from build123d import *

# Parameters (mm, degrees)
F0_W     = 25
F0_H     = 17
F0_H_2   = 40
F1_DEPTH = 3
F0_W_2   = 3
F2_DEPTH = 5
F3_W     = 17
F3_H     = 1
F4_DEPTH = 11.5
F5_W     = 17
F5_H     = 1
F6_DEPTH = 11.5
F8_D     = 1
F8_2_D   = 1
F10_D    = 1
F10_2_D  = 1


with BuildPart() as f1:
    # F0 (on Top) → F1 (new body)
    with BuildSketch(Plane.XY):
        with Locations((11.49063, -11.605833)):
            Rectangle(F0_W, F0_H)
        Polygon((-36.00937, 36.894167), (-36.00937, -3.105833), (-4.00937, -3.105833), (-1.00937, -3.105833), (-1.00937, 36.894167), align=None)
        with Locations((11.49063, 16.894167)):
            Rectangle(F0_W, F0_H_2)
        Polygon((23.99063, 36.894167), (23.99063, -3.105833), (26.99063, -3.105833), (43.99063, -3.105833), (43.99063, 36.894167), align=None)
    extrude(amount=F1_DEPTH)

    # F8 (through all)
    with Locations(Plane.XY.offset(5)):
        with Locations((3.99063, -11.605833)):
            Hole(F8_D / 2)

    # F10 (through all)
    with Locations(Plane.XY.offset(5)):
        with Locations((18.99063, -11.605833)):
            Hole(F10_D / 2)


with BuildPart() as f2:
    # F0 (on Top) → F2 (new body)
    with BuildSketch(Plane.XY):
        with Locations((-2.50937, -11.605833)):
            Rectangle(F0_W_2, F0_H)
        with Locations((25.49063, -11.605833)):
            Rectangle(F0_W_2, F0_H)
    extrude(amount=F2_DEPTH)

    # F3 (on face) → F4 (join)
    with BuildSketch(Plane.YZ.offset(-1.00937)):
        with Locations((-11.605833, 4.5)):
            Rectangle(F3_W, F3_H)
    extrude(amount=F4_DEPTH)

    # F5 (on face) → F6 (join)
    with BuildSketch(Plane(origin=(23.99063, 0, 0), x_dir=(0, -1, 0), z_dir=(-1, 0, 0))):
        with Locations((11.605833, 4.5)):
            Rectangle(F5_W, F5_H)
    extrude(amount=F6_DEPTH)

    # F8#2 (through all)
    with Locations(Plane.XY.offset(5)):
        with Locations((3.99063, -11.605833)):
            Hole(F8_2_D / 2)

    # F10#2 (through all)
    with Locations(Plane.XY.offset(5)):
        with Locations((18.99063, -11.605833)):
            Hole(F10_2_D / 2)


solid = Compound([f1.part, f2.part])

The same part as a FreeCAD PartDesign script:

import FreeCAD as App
import Part
import Sketcher
Q = App.Units.Quantity

doc = App.newDocument("Part")
body = doc.addObject("PartDesign::Body", "Body")

# Sketch on XY plane
sketch1 = body.newObject("Sketcher::SketchObject", "Sketch")
sketch1.AttachmentSupport = (doc.getObject("XY_Plane"), [""])
sketch1.MapMode = "FlatFace"
sketch1.addGeometry([
    Part.LineSegment(App.Vector(-1, -3, 0), App.Vector(-1, -20, 0)),  # 0
    Part.LineSegment(App.Vector(-1, -20, 0), App.Vector(24, -20, 0)),  # 1
    Part.LineSegment(App.Vector(24, -20, 0), App.Vector(24, -3, 0)),  # 2
    Part.LineSegment(App.Vector(24, -3, 0), App.Vector(44, -3, 0)),  # 3
    Part.LineSegment(App.Vector(44, -3, 0), App.Vector(44, 37, 0)),  # 4
    Part.LineSegment(App.Vector(44, 37, 0), App.Vector(-36, 37, 0)),  # 5
    Part.LineSegment(App.Vector(-36, 37, 0), App.Vector(-36, -3, 0)),  # 6
    Part.LineSegment(App.Vector(-36, -3, 0), App.Vector(-1, -3, 0)),  # 7
], False)
sketch1.addConstraint([
    Sketcher.Constraint("Coincident", 0, 2, 1, 1),
    Sketcher.Constraint("Coincident", 1, 2, 2, 1),
    Sketcher.Constraint("Coincident", 2, 2, 3, 1),
    Sketcher.Constraint("Coincident", 3, 2, 4, 1),
    Sketcher.Constraint("Coincident", 4, 2, 5, 1),
    Sketcher.Constraint("Coincident", 5, 2, 6, 1),
    Sketcher.Constraint("Coincident", 6, 2, 7, 1),
    Sketcher.Constraint("Coincident", 7, 2, 0, 1),
    Sketcher.Constraint("Vertical", 0),
    Sketcher.Constraint("Horizontal", 1),
    Sketcher.Constraint("Vertical", 2),
    Sketcher.Constraint("Horizontal", 3),
    Sketcher.Constraint("Vertical", 4),
    Sketcher.Constraint("Horizontal", 5),
    Sketcher.Constraint("Vertical", 6),
    Sketcher.Constraint("Horizontal", 7),
    Sketcher.Constraint("Horizontal", 3, 2, 6, 2),
    Sketcher.Constraint("DistanceX", 1, 1, 1, 2, Q("25 mm")),
    Sketcher.Constraint("DistanceX", 3, 1, 3, 2, Q("20 mm")),
    Sketcher.Constraint("DistanceX", 5, 2, 5, 1, Q("80 mm")),
    Sketcher.Constraint("DistanceY", 0, 2, 0, 1, Q("17 mm")),
    Sketcher.Constraint("DistanceY", 4, 1, 4, 2, Q("40 mm")),
    Sketcher.Constraint("DistanceX", 0, 2, -1, 1, Q("1.00937 mm")),
    Sketcher.Constraint("DistanceY", 0, 2, -1, 1, Q("20.105833 mm")),
])
pad1 = body.newObject("PartDesign::Pad", "Pad")
pad1.Profile = sketch1
pad1.Length = 3

# Sketch on XY plane
sketch2 = body.newObject("Sketcher::SketchObject", "Sketch001")
sketch2.AttachmentSupport = (doc.getObject("XY_Plane"), [""])
sketch2.MapMode = "FlatFace"
sketch2.AttachmentOffset = App.Placement(App.Vector(0, 0, 5), App.Rotation())
sketch2.addGeometry(Part.Circle(App.Vector(4, -11.6, 0), App.Vector(0, 0, 1), 0.5), False)
sketch2.addConstraint([
    Sketcher.Constraint("Diameter", 0, Q("1 mm")),
    Sketcher.Constraint("DistanceX", -1, 1, 0, 3, Q("3.99063 mm")),
    Sketcher.Constraint("DistanceY", 0, 3, -1, 1, Q("11.605833 mm")),
])
doc.recompute()
hole = body.newObject("PartDesign::Hole", "Hole")
hole.Profile = sketch2
hole.ThreadType = "None"
hole.Diameter = 1
hole.DepthType = "ThroughAll"

# Sketch on XY plane
sketch3 = body.newObject("Sketcher::SketchObject", "Sketch002")
sketch3.AttachmentSupport = (doc.getObject("XY_Plane"), [""])
sketch3.MapMode = "FlatFace"
sketch3.AttachmentOffset = App.Placement(App.Vector(0, 0, 5), App.Rotation())
sketch3.addGeometry(Part.Circle(App.Vector(19, -11.6, 0), App.Vector(0, 0, 1), 0.5), False)
sketch3.addConstraint([
    Sketcher.Constraint("Diameter", 0, Q("1 mm")),
    Sketcher.Constraint("DistanceX", -1, 1, 0, 3, Q("18.99063 mm")),
    Sketcher.Constraint("DistanceY", 0, 3, -1, 1, Q("11.605833 mm")),
])
doc.recompute()
hole2 = body.newObject("PartDesign::Hole", "Hole001")
hole2.Profile = sketch3
hole2.ThreadType = "None"
hole2.Diameter = 1
hole2.DepthType = "ThroughAll"
body2 = doc.addObject("PartDesign::Body", "Body001")
body2.AllowCompound = True

# Sketch on XY plane
sketch4 = body2.newObject("Sketcher::SketchObject", "Sketch003")
sketch4.AttachmentSupport = (doc.getObject("XY_Plane001"), [""])
sketch4.MapMode = "FlatFace"
sketch4.addGeometry([
    Part.LineSegment(App.Vector(-4, -3.1, 0), App.Vector(-4, -20.1, 0)),  # 0
    Part.LineSegment(App.Vector(-4, -20.1, 0), App.Vector(-1, -20.1, 0)),  # 1
    Part.LineSegment(App.Vector(-1, -20.1, 0), App.Vector(-1, -3.1, 0)),  # 2
    Part.LineSegment(App.Vector(-1, -3.1, 0), App.Vector(-4, -3.1, 0)),  # 3
    Part.LineSegment(App.Vector(24, -3.1, 0), App.Vector(24, -20.1, 0)),  # 4
    Part.LineSegment(App.Vector(24, -20.1, 0), App.Vector(27, -20.1, 0)),  # 5
    Part.LineSegment(App.Vector(27, -20.1, 0), App.Vector(27, -3.1, 0)),  # 6
    Part.LineSegment(App.Vector(27, -3.1, 0), App.Vector(24, -3.1, 0)),  # 7
], False)
sketch4.addConstraint([
    Sketcher.Constraint("Coincident", 0, 2, 1, 1),
    Sketcher.Constraint("Coincident", 1, 2, 2, 1),
    Sketcher.Constraint("Coincident", 2, 2, 3, 1),
    Sketcher.Constraint("Coincident", 3, 2, 0, 1),
    Sketcher.Constraint("Coincident", 4, 2, 5, 1),
    Sketcher.Constraint("Coincident", 5, 2, 6, 1),
    Sketcher.Constraint("Coincident", 6, 2, 7, 1),
    Sketcher.Constraint("Coincident", 7, 2, 4, 1),
    Sketcher.Constraint("Vertical", 0),
    Sketcher.Constraint("Horizontal", 1),
    Sketcher.Constraint("Vertical", 2),
    Sketcher.Constraint("Horizontal", 3),
    Sketcher.Constraint("Vertical", 4),
    Sketcher.Constraint("Horizontal", 5),
    Sketcher.Constraint("Vertical", 6),
    Sketcher.Constraint("Horizontal", 7),
    Sketcher.Constraint("Horizontal", 1, 2, 4, 2),
    Sketcher.Constraint("Horizontal", 3, 2, 6, 2),
    Sketcher.Constraint("Equal", 3, 5),
    Sketcher.Constraint("DistanceX", 1, 1, 1, 2, Q("3 mm")),
    Sketcher.Constraint("DistanceY", 0, 2, 0, 1, Q("17 mm")),
    Sketcher.Constraint("DistanceX", 1, 2, 4, 2, Q("25 mm")),
    Sketcher.Constraint("DistanceX", 0, 2, -1, 1, Q("4.00937 mm")),
    Sketcher.Constraint("DistanceY", 0, 2, -1, 1, Q("20.105833 mm")),
])
pad2 = body2.newObject("PartDesign::Pad", "Pad001")
pad2.Profile = sketch4
pad2.Length = 5

# Sketch on YZ plane
sketch5 = body2.newObject("Sketcher::SketchObject", "Sketch004")
sketch5.AttachmentSupport = (doc.getObject("YZ_Plane001"), [""])
sketch5.MapMode = "FlatFace"
sketch5.AttachmentOffset = App.Placement(App.Vector(0, 0, -1.00937), App.Rotation())
sketch5.addGeometry([
    Part.LineSegment(App.Vector(-20.1, 5, 0), App.Vector(-20.1, 4, 0)),
    Part.LineSegment(App.Vector(-20.1, 4, 0), App.Vector(-3.1, 4, 0)),
    Part.LineSegment(App.Vector(-3.1, 4, 0), App.Vector(-3.1, 5, 0)),
    Part.LineSegment(App.Vector(-3.1, 5, 0), App.Vector(-20.1, 5, 0)),
], False)
sketch5.addConstraint([
    Sketcher.Constraint("Coincident", 0, 2, 1, 1),
    Sketcher.Constraint("Coincident", 1, 2, 2, 1),
    Sketcher.Constraint("Coincident", 2, 2, 3, 1),
    Sketcher.Constraint("Coincident", 3, 2, 0, 1),
    Sketcher.Constraint("Vertical", 0),
    Sketcher.Constraint("Horizontal", 1),
    Sketcher.Constraint("Vertical", 2),
    Sketcher.Constraint("Horizontal", 3),
    Sketcher.Constraint("DistanceX", 1, 1, 1, 2, Q("17 mm")),
    Sketcher.Constraint("DistanceY", 0, 2, 0, 1, Q("1 mm")),
    Sketcher.Constraint("DistanceY", -1, 1, 0, 2, Q("4 mm")),
    Sketcher.Constraint("DistanceX", 0, 2, -1, 1, Q("20.105833 mm")),
])
pad3 = body2.newObject("PartDesign::Pad", "Pad002")
pad3.Profile = sketch5
pad3.Length = 11.5

# Sketch on YZ plane
sketch6 = body2.newObject("Sketcher::SketchObject", "Sketch005")
sketch6.AttachmentSupport = (doc.getObject("YZ_Plane001"), [""])
sketch6.MapMode = "FlatFace"
sketch6.AttachmentOffset = App.Placement(App.Vector(0, 0, 23.99063), App.Rotation())
sketch6.addGeometry([
    Part.LineSegment(App.Vector(-3.1, 5, 0), App.Vector(-3.1, 4, 0)),
    Part.LineSegment(App.Vector(-3.1, 4, 0), App.Vector(-20.1, 4, 0)),
    Part.LineSegment(App.Vector(-20.1, 4, 0), App.Vector(-20.1, 5, 0)),
    Part.LineSegment(App.Vector(-20.1, 5, 0), App.Vector(-3.1, 5, 0)),
], False)
sketch6.addConstraint([
    Sketcher.Constraint("Coincident", 0, 2, 1, 1),
    Sketcher.Constraint("Coincident", 1, 2, 2, 1),
    Sketcher.Constraint("Coincident", 2, 2, 3, 1),
    Sketcher.Constraint("Coincident", 3, 2, 0, 1),
    Sketcher.Constraint("Vertical", 0),
    Sketcher.Constraint("Horizontal", 1),
    Sketcher.Constraint("Vertical", 2),
    Sketcher.Constraint("Horizontal", 3),
    Sketcher.Constraint("DistanceX", 1, 2, 1, 1, Q("17 mm")),
    Sketcher.Constraint("DistanceY", 0, 2, 0, 1, Q("1 mm")),
    Sketcher.Constraint("DistanceY", -1, 1, 0, 2, Q("4 mm")),
    Sketcher.Constraint("DistanceX", 0, 2, -1, 1, Q("3.105833 mm")),
])
pad4 = body2.newObject("PartDesign::Pad", "Pad003")
pad4.Profile = sketch6
pad4.Length = 11.5
pad4.Reversed = True

# Sketch on XY plane
sketch7 = body2.newObject("Sketcher::SketchObject", "Sketch006")
sketch7.AttachmentSupport = (doc.getObject("XY_Plane001"), [""])
sketch7.MapMode = "FlatFace"
sketch7.AttachmentOffset = App.Placement(App.Vector(0, 0, 5), App.Rotation())
sketch7.addGeometry(Part.Circle(App.Vector(4, -11.6, 0), App.Vector(0, 0, 1), 0.5), False)
sketch7.addConstraint([
    Sketcher.Constraint("Diameter", 0, Q("1 mm")),
    Sketcher.Constraint("DistanceX", -1, 1, 0, 3, Q("3.99063 mm")),
    Sketcher.Constraint("DistanceY", 0, 3, -1, 1, Q("11.605833 mm")),
])
doc.recompute()
hole3 = body2.newObject("PartDesign::Hole", "Hole002")
hole3.Profile = sketch7
hole3.ThreadType = "None"
hole3.Diameter = 1
hole3.DepthType = "ThroughAll"

# Sketch on XY plane
sketch8 = body2.newObject("Sketcher::SketchObject", "Sketch007")
sketch8.AttachmentSupport = (doc.getObject("XY_Plane001"), [""])
sketch8.MapMode = "FlatFace"
sketch8.AttachmentOffset = App.Placement(App.Vector(0, 0, 5), App.Rotation())
sketch8.addGeometry(Part.Circle(App.Vector(19, -11.6, 0), App.Vector(0, 0, 1), 0.5), False)
sketch8.addConstraint([
    Sketcher.Constraint("Diameter", 0, Q("1 mm")),
    Sketcher.Constraint("DistanceX", -1, 1, 0, 3, Q("18.99063 mm")),
    Sketcher.Constraint("DistanceY", 0, 3, -1, 1, Q("11.605833 mm")),
])
doc.recompute()
hole4 = body2.newObject("PartDesign::Hole", "Hole003")
hole4.Profile = sketch8
hole4.ThreadType = "None"
hole4.Diameter = 1
hole4.DepthType = "ThroughAll"

doc.recompute()
